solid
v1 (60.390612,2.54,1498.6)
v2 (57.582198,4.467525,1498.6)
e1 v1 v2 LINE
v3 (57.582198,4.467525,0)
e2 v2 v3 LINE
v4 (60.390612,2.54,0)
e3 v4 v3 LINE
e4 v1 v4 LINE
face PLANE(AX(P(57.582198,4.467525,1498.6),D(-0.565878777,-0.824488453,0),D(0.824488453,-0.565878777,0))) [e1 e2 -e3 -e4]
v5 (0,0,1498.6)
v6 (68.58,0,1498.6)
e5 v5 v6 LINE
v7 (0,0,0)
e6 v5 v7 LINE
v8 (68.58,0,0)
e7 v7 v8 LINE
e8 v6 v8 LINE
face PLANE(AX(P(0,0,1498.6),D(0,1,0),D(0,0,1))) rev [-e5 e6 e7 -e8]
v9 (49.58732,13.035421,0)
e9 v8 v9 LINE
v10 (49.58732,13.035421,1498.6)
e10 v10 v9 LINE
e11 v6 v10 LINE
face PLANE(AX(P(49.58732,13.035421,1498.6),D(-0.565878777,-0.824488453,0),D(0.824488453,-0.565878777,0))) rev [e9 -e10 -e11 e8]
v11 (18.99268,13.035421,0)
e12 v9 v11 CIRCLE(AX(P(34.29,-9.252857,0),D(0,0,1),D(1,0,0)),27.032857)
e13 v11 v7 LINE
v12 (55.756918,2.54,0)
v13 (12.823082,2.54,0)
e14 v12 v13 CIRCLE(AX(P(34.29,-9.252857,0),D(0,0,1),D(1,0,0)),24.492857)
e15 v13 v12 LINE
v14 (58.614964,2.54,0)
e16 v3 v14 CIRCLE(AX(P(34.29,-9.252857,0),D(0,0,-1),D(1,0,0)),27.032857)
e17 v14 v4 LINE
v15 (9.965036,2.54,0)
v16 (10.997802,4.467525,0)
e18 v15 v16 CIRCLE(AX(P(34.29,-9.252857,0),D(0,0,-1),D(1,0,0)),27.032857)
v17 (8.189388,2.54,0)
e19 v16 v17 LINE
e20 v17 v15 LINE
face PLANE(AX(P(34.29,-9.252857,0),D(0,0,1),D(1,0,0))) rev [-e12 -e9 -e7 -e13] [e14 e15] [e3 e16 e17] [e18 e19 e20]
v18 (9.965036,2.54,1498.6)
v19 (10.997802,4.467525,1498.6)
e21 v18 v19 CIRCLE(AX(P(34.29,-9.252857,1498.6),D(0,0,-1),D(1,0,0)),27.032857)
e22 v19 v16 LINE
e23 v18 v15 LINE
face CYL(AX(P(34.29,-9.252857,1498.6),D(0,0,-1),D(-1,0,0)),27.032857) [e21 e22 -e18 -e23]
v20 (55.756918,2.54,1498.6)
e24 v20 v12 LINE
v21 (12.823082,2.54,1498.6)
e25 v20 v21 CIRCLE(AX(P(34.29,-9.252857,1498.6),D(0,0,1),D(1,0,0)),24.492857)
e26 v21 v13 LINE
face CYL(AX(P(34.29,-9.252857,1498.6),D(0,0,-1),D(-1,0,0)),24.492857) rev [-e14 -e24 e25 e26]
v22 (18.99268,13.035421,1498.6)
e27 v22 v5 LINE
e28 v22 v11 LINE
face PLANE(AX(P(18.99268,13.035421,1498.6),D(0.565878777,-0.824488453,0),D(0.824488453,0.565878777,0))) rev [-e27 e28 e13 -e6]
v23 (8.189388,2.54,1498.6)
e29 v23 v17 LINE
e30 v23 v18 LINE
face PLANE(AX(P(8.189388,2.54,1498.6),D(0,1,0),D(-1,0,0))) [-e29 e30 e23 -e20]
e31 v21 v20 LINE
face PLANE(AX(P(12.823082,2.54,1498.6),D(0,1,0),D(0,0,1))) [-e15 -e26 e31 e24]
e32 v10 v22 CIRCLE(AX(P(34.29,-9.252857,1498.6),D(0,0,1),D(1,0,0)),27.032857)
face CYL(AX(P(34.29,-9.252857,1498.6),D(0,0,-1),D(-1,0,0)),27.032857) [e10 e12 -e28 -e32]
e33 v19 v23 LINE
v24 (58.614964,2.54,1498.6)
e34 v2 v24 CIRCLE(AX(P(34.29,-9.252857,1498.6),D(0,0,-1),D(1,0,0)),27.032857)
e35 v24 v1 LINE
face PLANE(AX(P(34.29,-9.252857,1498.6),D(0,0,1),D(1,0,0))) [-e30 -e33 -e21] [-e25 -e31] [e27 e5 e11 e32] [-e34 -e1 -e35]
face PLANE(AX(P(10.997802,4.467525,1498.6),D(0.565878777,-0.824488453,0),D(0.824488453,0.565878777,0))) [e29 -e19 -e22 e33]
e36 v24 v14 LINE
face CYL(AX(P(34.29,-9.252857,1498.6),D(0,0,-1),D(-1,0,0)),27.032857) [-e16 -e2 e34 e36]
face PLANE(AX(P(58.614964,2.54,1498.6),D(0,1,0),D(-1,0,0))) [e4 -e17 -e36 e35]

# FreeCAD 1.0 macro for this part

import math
import FreeCAD as App
import Part
import Sketcher
Q = App.Units.Quantity

doc = App.newDocument("Part")
body = doc.addObject("PartDesign::Body", "Body")

sketch1 = body.newObject("Sketcher::SketchObject", "Sketch")
sketch1.AttachmentSupport = (doc.getObject("XY_Plane"), [""])
sketch1.MapMode = "FlatFace"
sketch1.addGeometry([
    Part.LineSegment(App.Vector(0, 0, 0), App.Vector(68.6, 0, 0)),
    Part.LineSegment(App.Vector(68.6, 0, 0), App.Vector(49.6, 13, 0)),
    Part.ArcOfCircle(Part.Circle(App.Vector(34.3, -9.3, 0), App.Vector(0, 0, 1), 27), math.radians(56), math.radians(124)),
    Part.LineSegment(App.Vector(19, 13, 0), App.Vector(0, 0, 0)),
    Part.LineSegment(App.Vector(8.2, 2.5, 0), App.Vector(11, 4.5, 0)),
    Part.ArcOfCircle(Part.Circle(App.Vector(34.3, -9.3, 0), App.Vector(0, 0, 1), 27), math.radians(149.5), math.radians(154.14)),
    Part.LineSegment(App.Vector(10, 2.5, 0), App.Vector(8.2, 2.5, 0)),
    Part.ArcOfCircle(Part.Circle(App.Vector(34.3, -9.3, 0), App.Vector(0, 0, 1), 27), math.radians(25.86), math.radians(30.5)),
    Part.LineSegment(App.Vector(57.6, 4.5, 0), App.Vector(60.4, 2.5, 0)),
    Part.LineSegment(App.Vector(60.4, 2.5, 0), App.Vector(58.6, 2.5, 0)),
    Part.LineSegment(App.Vector(55.8, 2.5, 0), App.Vector(12.8, 2.5, 0)),
    Part.ArcOfCircle(Part.Circle(App.Vector(34.3, -9.3, 0), App.Vector(0, 0, 1), 24.5), math.radians(29), math.radians(151)),
], False)
sketch1.addConstraint([
    Sketcher.Constraint("Coincident", 0, 2, 1, 1),
    Sketcher.Constraint("Tangent", 1, 2, 2, 1),
    Sketcher.Constraint("Tangent", 2, 2, 3, 1),
    Sketcher.Constraint("Coincident", 3, 2, 0, 1),
    Sketcher.Constraint("Coincident", 4, 2, 5, 1),
    Sketcher.Constraint("Coincident", 5, 2, 6, 1),
    Sketcher.Constraint("Coincident", 6, 2, 4, 1),
    Sketcher.Constraint("Coincident", 7, 2, 8, 1),
    Sketcher.Constraint("Coincident", 8, 2, 9, 1),
    Sketcher.Constraint("Coincident", 9, 2, 7, 1),
    Sketcher.Constraint("Coincident", 10, 1, 11, 1),
    Sketcher.Constraint("Coincident", 11, 2, 10, 2),
    Sketcher.Constraint("Horizontal", 0),
    Sketcher.Constraint("Horizontal", 6),
    Sketcher.Constraint("Horizontal", 9),
    Sketcher.Constraint("Horizontal", 10),
    Sketcher.Constraint("Coincident", 3, 2, -1, 1),
    Sketcher.Constraint("Coincident", 5, 3, 2, 3),
    Sketcher.Constraint("Coincident", 7, 3, 2, 3),
    Sketcher.Constraint("Coincident", 11, 3, 2, 3),
    Sketcher.Constraint("Equal", 2, 5),
    Sketcher.Constraint("Equal", 5, 7),
    Sketcher.Constraint("Parallel", 3, 4),
    Sketcher.Constraint("Parallel", 1, 8),
    Sketcher.Constraint("Horizontal", 1, 2, 2, 2),
    Sketcher.Constraint("Horizontal", 4, 2, 7, 2),
    Sketcher.Constraint("Horizontal", 6, 2, 8, 2),
    Sketcher.Constraint("Horizontal", 9, 2, 10, 1),
    Sketcher.Constraint("DistanceX", 0, 1, 0, 2, Q("2.7 in")),
    Sketcher.Constraint("DistanceY", -1, 1, 5, 2, Q("0.1 in")),
    Sketcher.Constraint("Radius", 2, 27.032857),
    Sketcher.Constraint("Radius", 11, 24.492857),
    Sketcher.Constraint("DistanceX", 6, 2, 6, 1, 1.775648),
    Sketcher.Constraint("Distance", 4, 3.406251),
])
pad1 = body.newObject("PartDesign::Pad", "Pad")
pad1.Profile = sketch1
pad1.Length = Q("59 in")

doc.recompute()
